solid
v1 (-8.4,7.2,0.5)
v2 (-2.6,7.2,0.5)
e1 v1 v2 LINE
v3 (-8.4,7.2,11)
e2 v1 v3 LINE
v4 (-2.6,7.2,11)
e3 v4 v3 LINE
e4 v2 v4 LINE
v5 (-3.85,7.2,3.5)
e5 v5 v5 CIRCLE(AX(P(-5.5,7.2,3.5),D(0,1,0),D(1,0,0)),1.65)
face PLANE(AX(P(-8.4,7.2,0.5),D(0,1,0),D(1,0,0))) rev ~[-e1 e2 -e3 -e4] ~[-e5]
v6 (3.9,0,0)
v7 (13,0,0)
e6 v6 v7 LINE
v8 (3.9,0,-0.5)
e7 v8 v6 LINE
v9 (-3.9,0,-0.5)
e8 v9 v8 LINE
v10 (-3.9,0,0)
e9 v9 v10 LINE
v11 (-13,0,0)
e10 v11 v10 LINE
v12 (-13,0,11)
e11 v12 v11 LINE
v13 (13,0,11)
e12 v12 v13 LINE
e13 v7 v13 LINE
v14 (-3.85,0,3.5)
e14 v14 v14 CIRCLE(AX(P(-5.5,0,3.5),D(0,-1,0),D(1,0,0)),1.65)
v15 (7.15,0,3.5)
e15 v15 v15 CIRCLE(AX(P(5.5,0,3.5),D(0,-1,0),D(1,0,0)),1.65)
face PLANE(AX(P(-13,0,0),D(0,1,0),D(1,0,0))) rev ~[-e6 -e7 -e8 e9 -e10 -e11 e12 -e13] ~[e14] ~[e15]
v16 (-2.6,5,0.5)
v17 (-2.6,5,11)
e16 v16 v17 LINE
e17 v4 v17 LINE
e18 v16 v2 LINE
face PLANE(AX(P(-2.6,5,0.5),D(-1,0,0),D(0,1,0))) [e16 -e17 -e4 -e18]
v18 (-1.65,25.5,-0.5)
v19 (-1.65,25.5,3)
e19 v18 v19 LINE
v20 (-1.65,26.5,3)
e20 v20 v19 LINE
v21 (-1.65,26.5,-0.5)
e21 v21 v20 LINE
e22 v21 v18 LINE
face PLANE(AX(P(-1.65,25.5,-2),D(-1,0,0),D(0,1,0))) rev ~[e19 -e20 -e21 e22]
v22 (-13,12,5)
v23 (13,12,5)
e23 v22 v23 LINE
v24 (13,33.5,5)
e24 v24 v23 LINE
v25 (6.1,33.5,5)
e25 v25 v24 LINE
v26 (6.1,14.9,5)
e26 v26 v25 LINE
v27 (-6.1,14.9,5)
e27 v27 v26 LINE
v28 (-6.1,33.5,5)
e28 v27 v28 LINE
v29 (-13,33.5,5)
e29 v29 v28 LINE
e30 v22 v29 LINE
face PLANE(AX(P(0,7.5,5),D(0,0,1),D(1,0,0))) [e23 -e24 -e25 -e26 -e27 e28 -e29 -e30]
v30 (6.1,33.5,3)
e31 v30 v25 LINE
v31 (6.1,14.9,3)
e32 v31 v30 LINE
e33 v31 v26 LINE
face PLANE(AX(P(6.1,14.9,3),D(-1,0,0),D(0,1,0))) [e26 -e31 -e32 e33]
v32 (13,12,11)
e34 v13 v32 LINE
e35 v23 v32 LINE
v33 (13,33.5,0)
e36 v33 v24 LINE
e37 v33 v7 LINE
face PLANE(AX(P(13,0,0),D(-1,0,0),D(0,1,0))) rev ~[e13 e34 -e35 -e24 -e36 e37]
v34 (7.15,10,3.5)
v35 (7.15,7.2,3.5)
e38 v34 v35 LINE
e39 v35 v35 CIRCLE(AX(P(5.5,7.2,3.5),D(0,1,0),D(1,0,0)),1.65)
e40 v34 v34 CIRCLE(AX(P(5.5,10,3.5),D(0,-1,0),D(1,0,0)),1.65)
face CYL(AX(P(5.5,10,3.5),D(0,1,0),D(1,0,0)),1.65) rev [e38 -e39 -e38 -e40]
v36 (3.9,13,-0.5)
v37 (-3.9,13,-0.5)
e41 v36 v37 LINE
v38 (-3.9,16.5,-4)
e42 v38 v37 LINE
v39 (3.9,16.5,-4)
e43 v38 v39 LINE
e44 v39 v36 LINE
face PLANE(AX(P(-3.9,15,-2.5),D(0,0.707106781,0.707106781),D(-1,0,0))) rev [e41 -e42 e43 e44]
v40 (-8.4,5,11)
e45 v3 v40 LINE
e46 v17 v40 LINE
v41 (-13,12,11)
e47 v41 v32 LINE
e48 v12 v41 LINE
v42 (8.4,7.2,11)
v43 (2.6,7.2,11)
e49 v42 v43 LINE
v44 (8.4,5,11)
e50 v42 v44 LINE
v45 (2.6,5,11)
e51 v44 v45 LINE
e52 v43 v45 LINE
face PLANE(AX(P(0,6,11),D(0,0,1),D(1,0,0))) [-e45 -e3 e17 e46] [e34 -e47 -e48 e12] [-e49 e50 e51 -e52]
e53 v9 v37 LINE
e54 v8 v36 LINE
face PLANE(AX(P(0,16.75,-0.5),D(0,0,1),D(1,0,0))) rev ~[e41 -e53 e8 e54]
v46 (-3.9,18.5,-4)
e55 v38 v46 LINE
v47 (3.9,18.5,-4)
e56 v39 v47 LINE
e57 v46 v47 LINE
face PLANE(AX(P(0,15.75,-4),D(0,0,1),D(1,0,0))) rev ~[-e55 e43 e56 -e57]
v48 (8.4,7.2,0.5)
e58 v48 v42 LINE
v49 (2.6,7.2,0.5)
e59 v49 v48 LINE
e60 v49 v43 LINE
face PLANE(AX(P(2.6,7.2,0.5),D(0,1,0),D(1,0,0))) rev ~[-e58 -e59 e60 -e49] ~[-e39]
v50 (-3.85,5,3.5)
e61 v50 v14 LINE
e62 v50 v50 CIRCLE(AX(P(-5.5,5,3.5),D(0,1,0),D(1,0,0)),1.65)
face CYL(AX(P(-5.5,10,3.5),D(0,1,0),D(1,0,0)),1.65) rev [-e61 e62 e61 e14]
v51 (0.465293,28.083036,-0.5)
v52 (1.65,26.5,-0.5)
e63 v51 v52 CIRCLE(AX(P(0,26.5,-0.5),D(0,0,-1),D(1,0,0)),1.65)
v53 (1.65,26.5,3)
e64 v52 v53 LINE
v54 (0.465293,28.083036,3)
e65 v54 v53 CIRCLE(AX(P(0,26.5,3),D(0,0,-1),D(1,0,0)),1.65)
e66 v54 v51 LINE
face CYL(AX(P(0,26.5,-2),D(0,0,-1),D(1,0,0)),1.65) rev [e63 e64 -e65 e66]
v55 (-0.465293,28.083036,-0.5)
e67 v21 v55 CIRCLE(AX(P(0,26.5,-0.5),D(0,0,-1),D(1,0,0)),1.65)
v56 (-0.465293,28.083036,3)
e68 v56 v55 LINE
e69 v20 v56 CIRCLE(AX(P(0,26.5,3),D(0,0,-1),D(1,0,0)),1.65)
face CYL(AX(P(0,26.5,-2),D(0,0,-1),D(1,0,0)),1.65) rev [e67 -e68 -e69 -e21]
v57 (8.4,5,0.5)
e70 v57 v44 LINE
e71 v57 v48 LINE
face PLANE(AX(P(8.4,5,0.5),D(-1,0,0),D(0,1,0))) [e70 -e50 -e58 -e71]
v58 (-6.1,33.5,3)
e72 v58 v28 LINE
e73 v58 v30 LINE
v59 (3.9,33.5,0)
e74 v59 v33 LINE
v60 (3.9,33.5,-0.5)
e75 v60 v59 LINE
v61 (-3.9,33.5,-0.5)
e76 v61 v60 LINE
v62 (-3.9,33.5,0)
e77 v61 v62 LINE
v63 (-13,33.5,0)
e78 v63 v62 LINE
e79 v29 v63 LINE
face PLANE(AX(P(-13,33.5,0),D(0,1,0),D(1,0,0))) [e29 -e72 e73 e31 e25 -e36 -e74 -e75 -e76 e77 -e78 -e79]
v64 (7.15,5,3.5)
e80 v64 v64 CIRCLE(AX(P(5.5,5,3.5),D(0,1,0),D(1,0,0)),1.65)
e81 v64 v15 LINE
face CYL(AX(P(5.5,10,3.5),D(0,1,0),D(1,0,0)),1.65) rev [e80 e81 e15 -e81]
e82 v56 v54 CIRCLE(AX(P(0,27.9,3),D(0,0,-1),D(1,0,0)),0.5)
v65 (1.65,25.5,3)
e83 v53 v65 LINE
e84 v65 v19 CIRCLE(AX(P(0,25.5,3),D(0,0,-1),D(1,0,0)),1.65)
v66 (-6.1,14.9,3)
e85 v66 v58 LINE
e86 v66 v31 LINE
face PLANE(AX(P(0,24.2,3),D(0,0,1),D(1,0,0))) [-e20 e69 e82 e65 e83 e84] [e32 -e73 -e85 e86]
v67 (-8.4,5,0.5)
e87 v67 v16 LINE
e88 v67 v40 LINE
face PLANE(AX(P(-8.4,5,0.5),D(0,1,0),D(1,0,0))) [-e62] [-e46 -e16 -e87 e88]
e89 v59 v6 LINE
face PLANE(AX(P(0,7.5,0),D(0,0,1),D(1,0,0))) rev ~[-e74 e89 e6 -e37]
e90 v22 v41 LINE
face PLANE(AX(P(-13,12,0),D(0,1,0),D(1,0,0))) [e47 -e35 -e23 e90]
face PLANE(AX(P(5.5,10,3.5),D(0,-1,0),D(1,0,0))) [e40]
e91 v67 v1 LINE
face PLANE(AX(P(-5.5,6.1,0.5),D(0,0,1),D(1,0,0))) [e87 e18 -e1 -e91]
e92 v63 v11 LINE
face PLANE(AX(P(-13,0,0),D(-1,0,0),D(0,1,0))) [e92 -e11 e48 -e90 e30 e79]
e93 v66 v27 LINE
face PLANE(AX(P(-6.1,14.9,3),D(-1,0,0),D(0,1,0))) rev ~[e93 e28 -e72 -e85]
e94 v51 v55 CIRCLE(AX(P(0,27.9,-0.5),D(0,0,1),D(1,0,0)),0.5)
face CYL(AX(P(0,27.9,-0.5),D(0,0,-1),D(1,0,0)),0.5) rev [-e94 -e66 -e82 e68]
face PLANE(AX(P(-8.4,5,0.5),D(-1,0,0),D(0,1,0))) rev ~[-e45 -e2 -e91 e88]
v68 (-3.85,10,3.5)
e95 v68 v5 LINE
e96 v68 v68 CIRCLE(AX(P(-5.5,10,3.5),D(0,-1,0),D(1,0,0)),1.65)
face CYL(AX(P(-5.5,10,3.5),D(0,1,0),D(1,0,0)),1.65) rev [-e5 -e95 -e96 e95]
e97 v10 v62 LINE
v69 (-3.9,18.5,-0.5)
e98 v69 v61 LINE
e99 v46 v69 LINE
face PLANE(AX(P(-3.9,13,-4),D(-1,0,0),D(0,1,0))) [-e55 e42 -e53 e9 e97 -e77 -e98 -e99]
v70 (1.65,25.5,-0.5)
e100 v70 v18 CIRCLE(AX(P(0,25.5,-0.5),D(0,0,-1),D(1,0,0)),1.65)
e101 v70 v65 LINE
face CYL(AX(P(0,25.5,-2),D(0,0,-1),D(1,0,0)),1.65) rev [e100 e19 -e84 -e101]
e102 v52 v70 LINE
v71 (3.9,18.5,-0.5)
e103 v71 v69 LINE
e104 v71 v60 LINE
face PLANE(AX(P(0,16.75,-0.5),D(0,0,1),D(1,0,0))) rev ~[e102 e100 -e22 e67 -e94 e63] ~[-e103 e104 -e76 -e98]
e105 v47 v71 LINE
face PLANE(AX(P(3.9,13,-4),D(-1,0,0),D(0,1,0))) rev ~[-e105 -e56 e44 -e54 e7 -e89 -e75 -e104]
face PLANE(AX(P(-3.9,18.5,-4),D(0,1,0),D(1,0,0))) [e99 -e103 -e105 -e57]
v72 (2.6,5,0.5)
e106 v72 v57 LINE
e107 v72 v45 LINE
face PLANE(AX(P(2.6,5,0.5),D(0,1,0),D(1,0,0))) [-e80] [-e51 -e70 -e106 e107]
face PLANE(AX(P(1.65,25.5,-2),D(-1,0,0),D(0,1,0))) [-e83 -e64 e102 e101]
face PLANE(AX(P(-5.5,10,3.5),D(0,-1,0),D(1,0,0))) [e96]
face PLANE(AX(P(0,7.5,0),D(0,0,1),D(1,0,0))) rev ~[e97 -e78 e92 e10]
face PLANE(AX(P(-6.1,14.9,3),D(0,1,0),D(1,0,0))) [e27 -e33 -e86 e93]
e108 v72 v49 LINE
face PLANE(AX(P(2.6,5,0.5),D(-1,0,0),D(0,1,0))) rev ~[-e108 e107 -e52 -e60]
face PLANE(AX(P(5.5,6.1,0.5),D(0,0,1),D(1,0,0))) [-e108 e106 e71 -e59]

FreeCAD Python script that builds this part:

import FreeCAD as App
import Part
import Sketcher

V = App.Vector


def edges_at(feature, points):
    """Names of the edges that pass closest to the given points."""
    edges = feature.Shape.Edges
    near = lambda p: min(range(len(edges)), key=lambda i: edges[i].distToShape(Part.Vertex(*p))[0])
    return sorted({f"Edge{near(p) + 1}" for p in points})

doc = App.newDocument("Part")
body = doc.addObject("PartDesign::Body", "Body")

# Sketch on XY plane
sketch1 = body.newObject("Sketcher::SketchObject", "Sketch")
sketch1.AttachmentSupport = (doc.getObject("XY_Plane"), [""])
sketch1.MapMode = "FlatFace"
sketch1.AttachmentOffset = App.Placement(V(0, 0, 0.5), App.Rotation())
sketch1.addGeometry([
    Part.LineSegment(V(2.6, 7.2, 0), V(2.6, 5, 0)),
    Part.LineSegment(V(2.6, 5, 0), V(8.4, 5, 0)),
    Part.LineSegment(V(8.4, 5, 0), V(8.4, 7.2, 0)),
    Part.LineSegment(V(8.4, 7.2, 0), V(2.6, 7.2, 0)),
], False)
sketch1.addConstraint([
    Sketcher.Constraint("Coincident", 0, 2, 1, 1),
    Sketcher.Constraint("Coincident", 1, 2, 2, 1),
    Sketcher.Constraint("Coincident", 2, 2, 3, 1),
    Sketcher.Constraint("Coincident", 3, 2, 0, 1),
    Sketcher.Constraint("Vertical", 0),
    Sketcher.Constraint("Horizontal", 1),
    Sketcher.Constraint("Vertical", 2),
    Sketcher.Constraint("Horizontal", 3),
    Sketcher.Constraint("DistanceX", 1, 1, 1, 2, 5.8),
    Sketcher.Constraint("DistanceY", 0, 2, 0, 1, 2.2),
    Sketcher.Constraint("DistanceY", -1, 1, 0, 2, 5.0),
    Sketcher.Constraint("DistanceX", -1, 1, 0, 2, 2.6),
])
pad1 = body.newObject("PartDesign::Pad", "Pad")
pad1.Profile = sketch1
pad1.Length = 11
body2 = doc.addObject("PartDesign::Body", "Body001")

# Sketch on XY plane
sketch2 = body2.newObject("Sketcher::SketchObject", "Sketch001")
sketch2.AttachmentSupport = (doc.getObject("XY_Plane001"), [""])
sketch2.MapMode = "FlatFace"
sketch2.AttachmentOffset = App.Placement(V(0, 0, 0.5), App.Rotation())
sketch2.addGeometry([
    Part.LineSegment(V(-8.4, 7.2, 0), V(-8.4, 5, 0)),
    Part.LineSegment(V(-8.4, 5, 0), V(-2.6, 5, 0)),
    Part.LineSegment(V(-2.6, 5, 0), V(-2.6, 7.2, 0)),
    Part.LineSegment(V(-2.6, 7.2, 0), V(-8.4, 7.2, 0)),
], False)
sketch2.addConstraint([
    Sketcher.Constraint("Coincident", 0, 2, 1, 1),
    Sketcher.Constraint("Coincident", 1, 2, 2, 1),
    Sketcher.Constraint("Coincident", 2, 2, 3, 1),
    Sketcher.Constraint("Coincident", 3, 2, 0, 1),
    Sketcher.Constraint("Vertical", 0),
    Sketcher.Constraint("Horizontal", 1),
    Sketcher.Constraint("Vertical", 2),
    Sketcher.Constraint("Horizontal", 3),
    Sketcher.Constraint("DistanceX", 1, 1, 1, 2, 5.8),
    Sketcher.Constraint("DistanceY", 0, 2, 0, 1, 2.2),
    Sketcher.Constraint("DistanceY", -1, 1, 0, 2, 5.0),
    Sketcher.Constraint("DistanceX", 0, 2, -1, 1, 8.4),
])
pad2 = body2.newObject("PartDesign::Pad", "Pad001")
pad2.Profile = sketch2
pad2.Length = 11
body3 = doc.addObject("PartDesign::Body", "Body002")

# Sketch on XZ plane
sketch3 = body3.newObject("Sketcher::SketchObject", "Sketch002")
sketch3.AttachmentSupport = (doc.getObject("XZ_Plane002"), [""])
sketch3.MapMode = "FlatFace"
sketch3.AttachmentOffset = App.Placement(V(0, 0, -10), App.Rotation())
sketch3.addGeometry(Part.Circle(V(-5.5, 3.5, 0), V(0, 0, 1), 1.65), False)
sketch3.addConstraint([
    Sketcher.Constraint("Diameter", 0, 3.3),
    Sketcher.Constraint("DistanceX", 0, 3, -1, 1, 5.5),
    Sketcher.Constraint("DistanceY", -1, 1, 0, 3, 3.5),
])
pad3 = body3.newObject("PartDesign::Pad", "Pad002")
pad3.Profile = sketch3
pad3.Length = 10
body4 = doc.addObject("PartDesign::Body", "Body003")
body4.AllowCompound = True

# Sketch on XZ plane
sketch4 = body4.newObject("Sketcher::SketchObject", "Sketch003")
sketch4.AttachmentSupport = (doc.getObject("XZ_Plane003"), [""])
sketch4.MapMode = "FlatFace"
sketch4.AttachmentOffset = App.Placement(V(0, 0, -10), App.Rotation())
sketch4.addGeometry(Part.Circle(V(5.5, 3.5, 0), V(0, 0, 1), 1.65), False)
sketch4.addConstraint([
    Sketcher.Constraint("Diameter", 0, 3.3),
    Sketcher.Constraint("DistanceX", -1, 1, 0, 3, 5.5),
    Sketcher.Constraint("DistanceY", -1, 1, 0, 3, 3.5),
])
pad4 = body4.newObject("PartDesign::Pad", "Pad003")
pad4.Profile = sketch4
pad4.Length = 10
doc.recompute()

boolean = body4.newObject("PartDesign::Boolean", "Boolean")
boolean.Type = "Fuse"
boolean.addObjects([body3])
body5 = doc.addObject("PartDesign::Body", "Body004")

# Sketch on XY plane
sketch5 = body5.newObject("Sketcher::SketchObject", "Sketch004")
sketch5.AttachmentSupport = (doc.getObject("XY_Plane004"), [""])
sketch5.MapMode = "FlatFace"
sketch5.AttachmentOffset = App.Placement(V(0, 0, -11), App.Rotation())
sketch5.addGeometry([
    Part.LineSegment(V(-3.9, 13.5, 0), V(-3.9, 8, 0)),
    Part.LineSegment(V(-3.9, 8, 0), V(3.9, 8, 0)),
    Part.LineSegment(V(3.9, 8, 0), V(3.9, 13.5, 0)),
    Part.LineSegment(V(3.9, 13.5, 0), V(-3.9, 13.5, 0)),
], False)
sketch5.addConstraint([
    Sketcher.Constraint("Coincident", 0, 2, 1, 1),
    Sketcher.Constraint("Coincident", 1, 2, 2, 1),
    Sketcher.Constraint("Coincident", 2, 2, 3, 1),
    Sketcher.Constraint("Coincident", 3, 2, 0, 1),
    Sketcher.Constraint("Vertical", 0),
    Sketcher.Constraint("Horizontal", 1),
    Sketcher.Constraint("Vertical", 2),
    Sketcher.Constraint("Horizontal", 3),
    Sketcher.Constraint("DistanceX", 1, 1, 1, 2, 7.8),
    Sketcher.Constraint("DistanceY", 0, 2, 0, 1, 5.5),
    Sketcher.Constraint("DistanceY", -1, 1, 0, 2, 8.0),
    Sketcher.Constraint("DistanceX", 0, 2, -1, 1, 3.9),
])
pad5 = body5.newObject("PartDesign::Pad", "Pad004")
pad5.Profile = sketch5
pad5.Length = 6
doc.recompute()

chamfer = body5.newObject("PartDesign::Chamfer", "Chamfer")
chamfer.Base = (pad5, edges_at(pad5, [(0, 13.5, -5)]))
chamfer.Size = 5
body6 = doc.addObject("PartDesign::Body", "Body005")
doc.recompute()

body5.Placement = App.Placement(V(0, 4, 5), App.Rotation(V(0, 0, 1), 0))
boolean2 = body6.newObject("PartDesign::Boolean", "Boolean001")
boolean2.Type = "Fuse"
boolean2.addObjects([body5])
body7 = doc.addObject("PartDesign::Body", "Body006")

# Sketch on XY plane
sketch6 = body7.newObject("Sketcher::SketchObject", "Sketch005")
sketch6.AttachmentSupport = (doc.getObject("XY_Plane006"), [""])
sketch6.MapMode = "FlatFace"
sketch6.AttachmentOffset = App.Placement(V(0, 0, -4), App.Rotation())
sketch6.addGeometry([
    Part.LineSegment(V(-3.9, 18.5, 0), V(-3.9, 13, 0)),
    Part.LineSegment(V(-3.9, 13, 0), V(3.9, 13, 0)),
    Part.LineSegment(V(3.9, 13, 0), V(3.9, 18.5, 0)),
    Part.LineSegment(V(3.9, 18.5, 0), V(-3.9, 18.5, 0)),
], False)
sketch6.addConstraint([
    Sketcher.Constraint("Coincident", 0, 2, 1, 1),
    Sketcher.Constraint("Coincident", 1, 2, 2, 1),
    Sketcher.Constraint("Coincident", 2, 2, 3, 1),
    Sketcher.Constraint("Coincident", 3, 2, 0, 1),
    Sketcher.Constraint("Vertical", 0),
    Sketcher.Constraint("Horizontal", 1),
    Sketcher.Constraint("Vertical", 2),
    Sketcher.Constraint("Horizontal", 3),
    Sketcher.Constraint("DistanceX", 1, 1, 1, 2, 7.8),
    Sketcher.Constraint("DistanceY", 0, 2, 0, 1, 5.5),
    Sketcher.Constraint("DistanceY", -1, 1, 0, 2, 13.0),
    Sketcher.Constraint("DistanceX", 0, 2, -1, 1, 3.9),
])
pad6 = body7.newObject("PartDesign::Pad", "Pad005")
pad6.Profile = sketch6
pad6.Length = 4
doc.recompute()

boolean3 = body7.newObject("PartDesign::Boolean", "Boolean002")
boolean3.Type = "Cut"
boolean3.addObjects([body6])
body8 = doc.addObject("PartDesign::Body", "Body007")

# Sketch on XY plane
sketch7 = body8.newObject("Sketcher::SketchObject", "Sketch006")
sketch7.AttachmentSupport = (doc.getObject("XY_Plane007"), [""])
sketch7.MapMode = "FlatFace"
sketch7.AttachmentOffset = App.Placement(V(0, 0, -0.5), App.Rotation())
sketch7.addGeometry(Part.Circle(V(0, 27.9, 0), V(0, 0, 1), 0.5), False)
sketch7.addConstraint([
    Sketcher.Constraint("PointOnObject", 0, 3, -2),
    Sketcher.Constraint("Diameter", 0, 1.0),
    Sketcher.Constraint("DistanceY", -1, 1, 0, 3, 27.9),
])
pad7 = body8.newObject("PartDesign::Pad", "Pad006")
pad7.Profile = sketch7
pad7.Length = 13
body9 = doc.addObject("PartDesign::Body", "Body008")

# Sketch on XY plane
sketch8 = body9.newObject("Sketcher::SketchObject", "Sketch007")
sketch8.AttachmentSupport = (doc.getObject("XY_Plane008"), [""])
sketch8.MapMode = "FlatFace"
sketch8.addGeometry(Part.Circle(V(0, 26.5, 0), V(0, 0, 1), 1.65), False)
sketch8.addConstraint([
    Sketcher.Constraint("PointOnObject", 0, 3, -2),
    Sketcher.Constraint("Diameter", 0, 3.3),
    Sketcher.Constraint("DistanceY", -1, 1, 0, 3, 26.5),
])
pad8 = body9.newObject("PartDesign::Pad", "Pad007")
pad8.Profile = sketch8
pad8.Length = 13
body10 = doc.addObject("PartDesign::Body", "Body009")

# Sketch on XY plane
sketch9 = body10.newObject("Sketcher::SketchObject", "Sketch008")
sketch9.AttachmentSupport = (doc.getObject("XY_Plane009"), [""])
sketch9.MapMode = "FlatFace"
sketch9.addGeometry([
    Part.LineSegment(V(-1.65, 26.5, 0), V(-1.65, 25.5, 0)),
    Part.LineSegment(V(-1.65, 25.5, 0), V(1.65, 25.5, 0)),
    Part.LineSegment(V(1.65, 25.5, 0), V(1.65, 26.5, 0)),
    Part.LineSegment(V(1.65, 26.5, 0), V(-1.65, 26.5, 0)),
], False)
sketch9.addConstraint([
    Sketcher.Constraint("Coincident", 0, 2, 1, 1),
    Sketcher.Constraint("Coincident", 1, 2, 2, 1),
    Sketcher.Constraint("Coincident", 2, 2, 3, 1),
    Sketcher.Constraint("Coincident", 3, 2, 0, 1),
    Sketcher.Constraint("Vertical", 0),
    Sketcher.Constraint("Horizontal", 1),
    Sketcher.Constraint("Vertical", 2),
    Sketcher.Constraint("Horizontal", 3),
    Sketcher.Constraint("DistanceY", 0, 2, 0, 1, 1.0),
    Sketcher.Constraint("DistanceX", 1, 1, 1, 2, 3.3),
    Sketcher.Constraint("DistanceY", -1, 1, 0, 2, 25.5),
    Sketcher.Constraint("DistanceX", 0, 2, -1, 1, 1.65),
])
pad9 = body10.newObject("PartDesign::Pad", "Pad008")
pad9.Profile = sketch9
pad9.Length = 10
body11 = doc.addObject("PartDesign::Body", "Body010")

# Sketch on XY plane
sketch10 = body11.newObject("Sketcher::SketchObject", "Sketch009")
sketch10.AttachmentSupport = (doc.getObject("XY_Plane010"), [""])
sketch10.MapMode = "FlatFace"
sketch10.addGeometry(Part.Circle(V(0, 25.5, 0), V(0, 0, 1), 1.65), False)
sketch10.addConstraint([
    Sketcher.Constraint("PointOnObject", 0, 3, -2),
    Sketcher.Constraint("Diameter", 0, 3.3),
    Sketcher.Constraint("DistanceY", -1, 1, 0, 3, 25.5),
])
pad10 = body11.newObject("PartDesign::Pad", "Pad009")
pad10.Profile = sketch10
pad10.Length = 13
doc.recompute()

boolean4 = body11.newObject("PartDesign::Boolean", "Boolean003")
boolean4.Type = "Fuse"
boolean4.addObjects([body9])
doc.recompute()

boolean5 = body11.newObject("PartDesign::Boolean", "Boolean004")
boolean5.Type = "Fuse"
boolean5.addObjects([body10])
body12 = doc.addObject("PartDesign::Body", "Body011")
doc.recompute()

body11.Placement = App.Placement(V(0, 0, -2), App.Rotation(V(0, 0, 1), 0))
boolean6 = body12.newObject("PartDesign::Boolean", "Boolean005")
boolean6.Type = "Fuse"
boolean6.addObjects([body11])
body13 = doc.addObject("PartDesign::Body", "Body012")

# Sketch on XY plane
sketch11 = body13.newObject("Sketcher::SketchObject", "Sketch010")
sketch11.AttachmentSupport = (doc.getObject("XY_Plane012"), [""])
sketch11.MapMode = "FlatFace"
sketch11.AttachmentOffset = App.Placement(V(0, 0, 3), App.Rotation())
sketch11.addGeometry([
    Part.LineSegment(V(-6.1, 33.5, 0), V(-6.1, 14.9, 0)),
    Part.LineSegment(V(-6.1, 14.9, 0), V(6.1, 14.9, 0)),
    Part.LineSegment(V(6.1, 14.9, 0), V(6.1, 33.5, 0)),
    Part.LineSegment(V(6.1, 33.5, 0), V(-6.1, 33.5, 0)),
], False)
sketch11.addConstraint([
    Sketcher.Constraint("Coincident", 0, 2, 1, 1),
    Sketcher.Constraint("Coincident", 1, 2, 2, 1),
    Sketcher.Constraint("Coincident", 2, 2, 3, 1),
    Sketcher.Constraint("Coincident", 3, 2, 0, 1),
    Sketcher.Constraint("Vertical", 0),
    Sketcher.Constraint("Horizontal", 1),
    Sketcher.Constraint("Vertical", 2),
    Sketcher.Constraint("Horizontal", 3),
    Sketcher.Constraint("DistanceX", 1, 1, 1, 2, 12.2),
    Sketcher.Constraint("DistanceY", 0, 2, 0, 1, 18.6),
    Sketcher.Constraint("DistanceX", 0, 2, -1, 1, 6.1),
    Sketcher.Constraint("DistanceY", -1, 1, 0, 2, 14.9),
])
pad11 = body13.newObject("PartDesign::Pad", "Pad010")
pad11.Profile = sketch11
pad11.Length = 2
body14 = doc.addObject("PartDesign::Body", "Body013")

# Sketch on XY plane
sketch12 = body14.newObject("Sketcher::SketchObject", "Sketch011")
sketch12.AttachmentSupport = (doc.getObject("XY_Plane013"), [""])
sketch12.MapMode = "FlatFace"
sketch12.addGeometry([
    Part.LineSegment(V(-13, 33.5, 0), V(-13, 0, 0)),
    Part.LineSegment(V(-13, 0, 0), V(13, 0, 0)),
    Part.LineSegment(V(13, 0, 0), V(13, 33.5, 0)),
    Part.LineSegment(V(13, 33.5, 0), V(-13, 33.5, 0)),
], False)
sketch12.addConstraint([
    Sketcher.Constraint("Coincident", 0, 2, 1, 1),
    Sketcher.Constraint("Coincident", 1, 2, 2, 1),
    Sketcher.Constraint("Coincident", 2, 2, 3, 1),
    Sketcher.Constraint("Coincident", 3, 2, 0, 1),
    Sketcher.Constraint("Vertical", 0),
    Sketcher.Constraint("Horizontal", 1),
    Sketcher.Constraint("Vertical", 2),
    Sketcher.Constraint("Horizontal", 3),
    Sketcher.Constraint("Symmetric", 0, 2, 1, 2, -1, 1),
    Sketcher.Constraint("DistanceX", 1, 1, 1, 2, 26.0),
    Sketcher.Constraint("DistanceY", 0, 2, 0, 1, 33.5),
])
pad12 = body14.newObject("PartDesign::Pad", "Pad011")
pad12.Profile = sketch12
pad12.Length = 3
body15 = doc.addObject("PartDesign::Body", "Body014")

# Sketch on XY plane
sketch13 = body15.newObject("Sketcher::SketchObject", "Sketch012")
sketch13.AttachmentSupport = (doc.getObject("XY_Plane014"), [""])
sketch13.MapMode = "FlatFace"
sketch13.addGeometry([
    Part.LineSegment(V(-13, 12, 0), V(-13, 0, 0)),
    Part.LineSegment(V(-13, 0, 0), V(13, 0, 0)),
    Part.LineSegment(V(13, 0, 0), V(13, 12, 0)),
    Part.LineSegment(V(13, 12, 0), V(-13, 12, 0)),
], False)
sketch13.addConstraint([
    Sketcher.Constraint("Coincident", 0, 2, 1, 1),
    Sketcher.Constraint("Coincident", 1, 2, 2, 1),
    Sketcher.Constraint("Coincident", 2, 2, 3, 1),
    Sketcher.Constraint("Coincident", 3, 2, 0, 1),
    Sketcher.Constraint("Vertical", 0),
    Sketcher.Constraint("Horizontal", 1),
    Sketcher.Constraint("Vertical", 2),
    Sketcher.Constraint("Horizontal", 3),
    Sketcher.Constraint("Symmetric", 0, 2, 1, 2, -1, 1),
    Sketcher.Constraint("DistanceX", 1, 1, 1, 2, 26.0),
    Sketcher.Constraint("DistanceY", 0, 2, 0, 1, 12.0),
])
pad13 = body15.newObject("PartDesign::Pad", "Pad012")
pad13.Profile = sketch13
pad13.Length = 11
body16 = doc.addObject("PartDesign::Body", "Body015")

# Sketch on XY plane
sketch14 = body16.newObject("Sketcher::SketchObject", "Sketch013")
sketch14.AttachmentSupport = (doc.getObject("XY_Plane015"), [""])
sketch14.MapMode = "FlatFace"
sketch14.addGeometry([
    Part.LineSegment(V(6, 33.5, 0), V(6, 0, 0)),
    Part.LineSegment(V(6, 0, 0), V(13, 0, 0)),
    Part.LineSegment(V(13, 0, 0), V(13, 33.5, 0)),
    Part.LineSegment(V(13, 33.5, 0), V(6, 33.5, 0)),
], False)
sketch14.addConstraint([
    Sketcher.Constraint("Coincident", 0, 2, 1, 1),
    Sketcher.Constraint("Coincident", 1, 2, 2, 1),
    Sketcher.Constraint("Coincident", 2, 2, 3, 1),
    Sketcher.Constraint("Coincident", 3, 2, 0, 1),
    Sketcher.Constraint("Vertical", 0),
    Sketcher.Constraint("Horizontal", 1),
    Sketcher.Constraint("Vertical", 2),
    Sketcher.Constraint("Horizontal", 3),
    Sketcher.Constraint("PointOnObject", 0, 2, -1),
    Sketcher.Constraint("DistanceX", 1, 1, 1, 2, 7.0),
    Sketcher.Constraint("DistanceY", 0, 2, 0, 1, 33.5),
    Sketcher.Constraint("DistanceX", -1, 1, 0, 2, 6.0),
])
pad14 = body16.newObject("PartDesign::Pad", "Pad013")
pad14.Profile = sketch14
pad14.Length = 5
body17 = doc.addObject("PartDesign::Body", "Body016")

# Sketch on XY plane
sketch15 = body17.newObject("Sketcher::SketchObject", "Sketch014")
sketch15.AttachmentSupport = (doc.getObject("XY_Plane016"), [""])
sketch15.MapMode = "FlatFace"
sketch15.addGeometry([
    Part.LineSegment(V(-13, 33.5, 0), V(-13, 0, 0)),
    Part.LineSegment(V(-13, 0, 0), V(-6, 0, 0)),
    Part.LineSegment(V(-6, 0, 0), V(-6, 33.5, 0)),
    Part.LineSegment(V(-6, 33.5, 0), V(-13, 33.5, 0)),
], False)
sketch15.addConstraint([
    Sketcher.Constraint("Coincident", 0, 2, 1, 1),
    Sketcher.Constraint("Coincident", 1, 2, 2, 1),
    Sketcher.Constraint("Coincident", 2, 2, 3, 1),
    Sketcher.Constraint("Coincident", 3, 2, 0, 1),
    Sketcher.Constraint("Vertical", 0),
    Sketcher.Constraint("Horizontal", 1),
    Sketcher.Constraint("Vertical", 2),
    Sketcher.Constraint("Horizontal", 3),
    Sketcher.Constraint("PointOnObject", 0, 2, -1),
    Sketcher.Constraint("DistanceX", 1, 1, 1, 2, 7.0),
    Sketcher.Constraint("DistanceY", 0, 2, 0, 1, 33.5),
    Sketcher.Constraint("DistanceX", 0, 2, -1, 1, 13.0),
])
pad15 = body17.newObject("PartDesign::Pad", "Pad014")
pad15.Profile = sketch15
pad15.Length = 5
body18 = doc.addObject("PartDesign::Body", "Body017")

# Sketch on XY plane
sketch16 = body18.newObject("Sketcher::SketchObject", "Sketch015")
sketch16.AttachmentSupport = (doc.getObject("XY_Plane017"), [""])
sketch16.MapMode = "FlatFace"
sketch16.AttachmentOffset = App.Placement(V(0, 0, -0.5), App.Rotation())
sketch16.addGeometry([
    Part.LineSegment(V(-3.9, 33.5, 0), V(-3.9, 0, 0)),
    Part.LineSegment(V(-3.9, 0, 0), V(3.9, 0, 0)),
    Part.LineSegment(V(3.9, 0, 0), V(3.9, 33.5, 0)),
    Part.LineSegment(V(3.9, 33.5, 0), V(-3.9, 33.5, 0)),
], False)
sketch16.addConstraint([
    Sketcher.Constraint("Coincident", 0, 2, 1, 1),
    Sketcher.Constraint("Coincident", 1, 2, 2, 1),
    Sketcher.Constraint("Coincident", 2, 2, 3, 1),
    Sketcher.Constraint("Coincident", 3, 2, 0, 1),
    Sketcher.Constraint("Vertical", 0),
    Sketcher.Constraint("Horizontal", 1),
    Sketcher.Constraint("Vertical", 2),
    Sketcher.Constraint("Horizontal", 3),
    Sketcher.Constraint("Symmetric", 0, 2, 1, 2, -1, 1),
    Sketcher.Constraint("DistanceX", 1, 1, 1, 2, 7.8),
    Sketcher.Constraint("DistanceY", 0, 2, 0, 1, 33.5),
])
pad16 = body18.newObject("PartDesign::Pad", "Pad015")
pad16.Profile = sketch16
pad16.Length = 0.5
body19 = doc.addObject("PartDesign::Body", "Body018")

# Sketch on XY plane
sketch17 = body19.newObject("Sketcher::SketchObject", "Sketch016")
sketch17.AttachmentSupport = (doc.getObject("XY_Plane018"), [""])
sketch17.MapMode = "FlatFace"
sketch17.addGeometry([
    Part.LineSegment(V(-13, 15, 0), V(-13, 0, 0)),
    Part.LineSegment(V(-13, 0, 0), V(13, 0, 0)),
    Part.LineSegment(V(13, 0, 0), V(13, 15, 0)),
    Part.LineSegment(V(13, 15, 0), V(-13, 15, 0)),
], False)
sketch17.addConstraint([
    Sketcher.Constraint("Coincident", 0, 2, 1, 1),
    Sketcher.Constraint("Coincident", 1, 2, 2, 1),
    Sketcher.Constraint("Coincident", 2, 2, 3, 1),
    Sketcher.Constraint("Coincident", 3, 2, 0, 1),
    Sketcher.Constraint("Vertical", 0),
    Sketcher.Constraint("Horizontal", 1),
    Sketcher.Constraint("Vertical", 2),
    Sketcher.Constraint("Horizontal", 3),
    Sketcher.Constraint("Symmetric", 0, 2, 1, 2, -1, 1),
    Sketcher.Constraint("DistanceX", 1, 1, 1, 2, 26.0),
    Sketcher.Constraint("DistanceY", 0, 2, 0, 1, 15.0),
])
pad17 = body19.newObject("PartDesign::Pad", "Pad016")
pad17.Profile = sketch17
pad17.Length = 5
doc.recompute()

boolean7 = body19.newObject("PartDesign::Boolean", "Boolean006")
boolean7.Type = "Fuse"
boolean7.addObjects([body14])
doc.recompute()

boolean8 = body19.newObject("PartDesign::Boolean", "Boolean007")
boolean8.Type = "Fuse"
boolean8.addObjects([body15])
doc.recompute()

boolean9 = body19.newObject("PartDesign::Boolean", "Boolean008")
boolean9.Type = "Fuse"
boolean9.addObjects([body16])
doc.recompute()

boolean10 = body19.newObject("PartDesign::Boolean", "Boolean009")
boolean10.Type = "Fuse"
boolean10.addObjects([body17])
doc.recompute()

boolean11 = body19.newObject("PartDesign::Boolean", "Boolean010")
boolean11.Type = "Fuse"
boolean11.addObjects([body18])
doc.recompute()

boolean12 = body19.newObject("PartDesign::Boolean", "Boolean011")
boolean12.Type = "Cut"
boolean12.addObjects([body13])
doc.recompute()

boolean13 = body19.newObject("PartDesign::Boolean", "Boolean012")
boolean13.Type = "Cut"
boolean13.addObjects([body12])
doc.recompute()

boolean14 = body19.newObject("PartDesign::Boolean", "Boolean013")
boolean14.Type = "Cut"
boolean14.addObjects([body8])
doc.recompute()

boolean15 = body19.newObject("PartDesign::Boolean", "Boolean014")
boolean15.Type = "Fuse"
boolean15.addObjects([body7])
doc.recompute()

boolean16 = body19.newObject("PartDesign::Boolean", "Boolean015")
boolean16.Type = "Cut"
boolean16.addObjects([body4])
doc.recompute()

boolean17 = body19.newObject("PartDesign::Boolean", "Boolean016")
boolean17.Type = "Cut"
boolean17.addObjects([body2])
doc.recompute()

boolean18 = body19.newObject("PartDesign::Boolean", "Boolean017")
boolean18.Type = "Cut"
boolean18.addObjects([body])

doc.recompute()
